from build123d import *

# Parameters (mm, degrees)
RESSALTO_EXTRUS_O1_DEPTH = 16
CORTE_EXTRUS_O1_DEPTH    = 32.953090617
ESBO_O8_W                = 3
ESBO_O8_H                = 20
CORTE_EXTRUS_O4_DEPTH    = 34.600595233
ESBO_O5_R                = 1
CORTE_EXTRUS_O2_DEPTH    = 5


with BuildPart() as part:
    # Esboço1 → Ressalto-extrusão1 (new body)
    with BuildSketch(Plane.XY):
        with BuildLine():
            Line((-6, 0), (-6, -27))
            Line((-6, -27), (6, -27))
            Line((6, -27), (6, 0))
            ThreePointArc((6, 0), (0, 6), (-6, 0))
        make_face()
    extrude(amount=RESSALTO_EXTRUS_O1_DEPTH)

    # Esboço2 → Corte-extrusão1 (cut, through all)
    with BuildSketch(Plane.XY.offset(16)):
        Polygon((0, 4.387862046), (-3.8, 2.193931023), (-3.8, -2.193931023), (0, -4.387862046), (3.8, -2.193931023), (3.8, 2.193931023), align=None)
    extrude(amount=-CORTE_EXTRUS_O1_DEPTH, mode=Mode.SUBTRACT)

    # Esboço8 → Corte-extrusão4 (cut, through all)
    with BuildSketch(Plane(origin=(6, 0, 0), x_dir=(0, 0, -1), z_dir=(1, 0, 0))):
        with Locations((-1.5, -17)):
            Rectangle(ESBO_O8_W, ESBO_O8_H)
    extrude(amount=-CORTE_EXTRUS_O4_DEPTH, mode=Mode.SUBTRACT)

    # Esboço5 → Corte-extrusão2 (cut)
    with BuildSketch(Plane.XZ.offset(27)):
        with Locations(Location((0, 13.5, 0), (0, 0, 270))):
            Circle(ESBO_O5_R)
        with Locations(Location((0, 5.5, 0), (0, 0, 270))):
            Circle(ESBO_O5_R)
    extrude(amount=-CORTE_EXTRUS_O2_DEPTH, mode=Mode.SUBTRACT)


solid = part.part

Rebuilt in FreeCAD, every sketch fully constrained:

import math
import FreeCAD as App
import Part
import Sketcher

V = App.Vector
Q = App.Units.Quantity

doc = App.newDocument("Part")
params = doc.addObject("Spreadsheet::Sheet", "Params")
for row, (alias, value) in enumerate([
    ("sketch1_radius", "6 mm"),
    ("sketch1_height", "27 mm"),
    ("pad1_length", "16 mm"),
    ("sketch3_width", "20 mm"),
    ("sketch3_height", "3 mm"),
    ("sketch4_diameter", "2 mm"),
    ("pocket3_length", "5 mm"),
], start=1):
    params.set(f"A{row}", alias)
    params.set(f"B{row}", "=" + value)
    params.setAlias(f"B{row}", alias)

body = doc.addObject("PartDesign::Body", "Body")

# Sketch on XY plane
sketch1 = body.newObject("Sketcher::SketchObject", "Sketch")
sketch1.AttachmentSupport = (doc.getObject("XY_Plane"), [""])
sketch1.MapMode = "FlatFace"
sketch1.addGeometry([
    Part.LineSegment(V(-6, 0, 0), V(-6, -27, 0)),
    Part.LineSegment(V(-6, -27, 0), V(6, -27, 0)),
    Part.LineSegment(V(6, -27, 0), V(6, 0, 0)),
    Part.ArcOfCircle(Part.Circle(V(0, 0, 0), V(0, 0, 1), 6), math.radians(0), math.radians(180)),
], False)
sketch1.addConstraint([
    Sketcher.Constraint("Coincident", 0, 2, 1, 1),
    Sketcher.Constraint("Coincident", 1, 2, 2, 1),
    Sketcher.Constraint("Tangent", 2, 2, 3, 1),
    Sketcher.Constraint("Tangent", 3, 2, 0, 1),
    Sketcher.Constraint("Vertical", 0),
    Sketcher.Constraint("Horizontal", 1),
    Sketcher.Constraint("Vertical", 2),
    Sketcher.Constraint("Coincident", 3, 3, -1, 1),
    Sketcher.Constraint("Radius", 3, 6.0),
    Sketcher.Constraint("DistanceY", 0, 2, 0, 1, 27.0),
])
sketch1.setExpression("Constraints[8]", "Params.sketch1_radius")
sketch1.setExpression("Constraints[9]", "Params.sketch1_height")
pad1 = body.newObject("PartDesign::Pad", "Pad")
pad1.Profile = sketch1
pad1.setExpression("Length", "Params.pad1_length")

# Sketch on XY plane
sketch2 = body.newObject("Sketcher::SketchObject", "Sketch001")
sketch2.AttachmentSupport = (doc.getObject("XY_Plane"), [""])
sketch2.MapMode = "FlatFace"
sketch2.AttachmentOffset = App.Placement(V(0, 0, 16), App.Rotation())
sketch2.addGeometry([
    Part.LineSegment(V(0, 4.4, 0), V(-3.8, 2.2, 0)),  # 0
    Part.LineSegment(V(-3.8, 2.2, 0), V(-3.8, -2.2, 0)),  # 1
    Part.LineSegment(V(-3.8, -2.2, 0), V(0, -4.4, 0)),  # 2
    Part.LineSegment(V(0, -4.4, 0), V(3.8, -2.2, 0)),  # 3
    Part.LineSegment(V(3.8, -2.2, 0), V(3.8, 2.2, 0)),  # 4
    Part.LineSegment(V(3.8, 2.2, 0), V(0, 4.4, 0)),  # 5
], False)
sketch2.addConstraint([
    Sketcher.Constraint("Coincident", 0, 2, 1, 1),
    Sketcher.Constraint("Coincident", 1, 2, 2, 1),
    Sketcher.Constraint("Coincident", 2, 2, 3, 1),
    Sketcher.Constraint("Coincident", 3, 2, 4, 1),
    Sketcher.Constraint("Coincident", 4, 2, 5, 1),
    Sketcher.Constraint("Coincident", 5, 2, 0, 1),
    Sketcher.Constraint("Vertical", 1),
    Sketcher.Constraint("Vertical", 4),
    Sketcher.Constraint("Symmetric", 0, 2, 3, 2, -1, 1),
    Sketcher.Constraint("Symmetric", 2, 2, 5, 2, -1, 1),
    Sketcher.Constraint("PointOnObject", 2, 2, -2),
    Sketcher.Constraint("Parallel", 2, 5),
    Sketcher.Constraint("Horizontal", 1, 2, 3, 2),
    Sketcher.Constraint("Angle", 0, Q("-150 deg")),
    Sketcher.Constraint("DistanceX", 0, 2, -1, 1, 3.8),
    Sketcher.Constraint("DistanceY", 1, 2, 1, 1, 4.387862),
])
pocket1 = body.newObject("PartDesign::Pocket", "Pocket")
pocket1.Profile = sketch2
pocket1.Type = "ThroughAll"

# Sketch on YZ plane
sketch3 = body.newObject("Sketcher::SketchObject", "Sketch002")
sketch3.AttachmentSupport = (doc.getObject("YZ_Plane"), [""])
sketch3.MapMode = "FlatFace"
sketch3.AttachmentOffset = App.Placement(V(0, 0, 6), App.Rotation())
sketch3.addGeometry([
    Part.LineSegment(V(-7, 3, 0), V(-27, 3, 0)),
    Part.LineSegment(V(-27, 3, 0), V(-27, 0, 0)),
    Part.LineSegment(V(-27, 0, 0), V(-7, 0, 0)),
    Part.LineSegment(V(-7, 0, 0), V(-7, 3, 0)),
], False)
sketch3.addConstraint([
    Sketcher.Constraint("Coincident", 0, 2, 1, 1),
    Sketcher.Constraint("Coincident", 1, 2, 2, 1),
    Sketcher.Constraint("Coincident", 2, 2, 3, 1),
    Sketcher.Constraint("Coincident", 3, 2, 0, 1),
    Sketcher.Constraint("Horizontal", 0),
    Sketcher.Constraint("Vertical", 1),
    Sketcher.Constraint("Horizontal", 2),
    Sketcher.Constraint("Vertical", 3),
    Sketcher.Constraint("PointOnObject", 1, 2, -1),
    Sketcher.Constraint("DistanceX", 0, 2, 0, 1, 20.0),
    Sketcher.Constraint("DistanceY", 1, 2, 1, 1, 3.0),
    Sketcher.Constraint("DistanceX", 0, 2, -1, 1, 27.0),
])
sketch3.setExpression("Constraints[9]", "Params.sketch3_width")
sketch3.setExpression("Constraints[10]", "Params.sketch3_height")
pocket2 = body.newObject("PartDesign::Pocket", "Pocket001")
pocket2.Profile = sketch3
pocket2.Type = "ThroughAll"

# Sketch on XZ plane
sketch4 = body.newObject("Sketcher::SketchObject", "Sketch003")
sketch4.AttachmentSupport = (doc.getObject("XZ_Plane"), [""])
sketch4.MapMode = "FlatFace"
sketch4.AttachmentOffset = App.Placement(V(0, 0, 27), App.Rotation())
sketch4.addGeometry([
    Part.Circle(V(0, 13.5, 0), V(0, 0, 1), 1),
    Part.Circle(V(0, 5.5, 0), V(0, 0, 1), 1),
], False)
sketch4.addConstraint([
    Sketcher.Constraint("Equal", 0, 1),
    Sketcher.Constraint("PointOnObject", 0, 3, -2),
    Sketcher.Constraint("PointOnObject", 1, 3, -2),
    Sketcher.Constraint("Diameter", 0, 2.0),
    Sketcher.Constraint("DistanceY", 1, 3, 0, 3, 8.0),
    Sketcher.Constraint("DistanceY", -1, 1, 0, 3, 13.5),
])
sketch4.setExpression("Constraints[3]", "Params.sketch4_diameter")
pocket3 = body.newObject("PartDesign::Pocket", "Pocket002")
pocket3.Profile = sketch4
pocket3.setExpression("Length", "Params.pocket3_length")

doc.recompute()
